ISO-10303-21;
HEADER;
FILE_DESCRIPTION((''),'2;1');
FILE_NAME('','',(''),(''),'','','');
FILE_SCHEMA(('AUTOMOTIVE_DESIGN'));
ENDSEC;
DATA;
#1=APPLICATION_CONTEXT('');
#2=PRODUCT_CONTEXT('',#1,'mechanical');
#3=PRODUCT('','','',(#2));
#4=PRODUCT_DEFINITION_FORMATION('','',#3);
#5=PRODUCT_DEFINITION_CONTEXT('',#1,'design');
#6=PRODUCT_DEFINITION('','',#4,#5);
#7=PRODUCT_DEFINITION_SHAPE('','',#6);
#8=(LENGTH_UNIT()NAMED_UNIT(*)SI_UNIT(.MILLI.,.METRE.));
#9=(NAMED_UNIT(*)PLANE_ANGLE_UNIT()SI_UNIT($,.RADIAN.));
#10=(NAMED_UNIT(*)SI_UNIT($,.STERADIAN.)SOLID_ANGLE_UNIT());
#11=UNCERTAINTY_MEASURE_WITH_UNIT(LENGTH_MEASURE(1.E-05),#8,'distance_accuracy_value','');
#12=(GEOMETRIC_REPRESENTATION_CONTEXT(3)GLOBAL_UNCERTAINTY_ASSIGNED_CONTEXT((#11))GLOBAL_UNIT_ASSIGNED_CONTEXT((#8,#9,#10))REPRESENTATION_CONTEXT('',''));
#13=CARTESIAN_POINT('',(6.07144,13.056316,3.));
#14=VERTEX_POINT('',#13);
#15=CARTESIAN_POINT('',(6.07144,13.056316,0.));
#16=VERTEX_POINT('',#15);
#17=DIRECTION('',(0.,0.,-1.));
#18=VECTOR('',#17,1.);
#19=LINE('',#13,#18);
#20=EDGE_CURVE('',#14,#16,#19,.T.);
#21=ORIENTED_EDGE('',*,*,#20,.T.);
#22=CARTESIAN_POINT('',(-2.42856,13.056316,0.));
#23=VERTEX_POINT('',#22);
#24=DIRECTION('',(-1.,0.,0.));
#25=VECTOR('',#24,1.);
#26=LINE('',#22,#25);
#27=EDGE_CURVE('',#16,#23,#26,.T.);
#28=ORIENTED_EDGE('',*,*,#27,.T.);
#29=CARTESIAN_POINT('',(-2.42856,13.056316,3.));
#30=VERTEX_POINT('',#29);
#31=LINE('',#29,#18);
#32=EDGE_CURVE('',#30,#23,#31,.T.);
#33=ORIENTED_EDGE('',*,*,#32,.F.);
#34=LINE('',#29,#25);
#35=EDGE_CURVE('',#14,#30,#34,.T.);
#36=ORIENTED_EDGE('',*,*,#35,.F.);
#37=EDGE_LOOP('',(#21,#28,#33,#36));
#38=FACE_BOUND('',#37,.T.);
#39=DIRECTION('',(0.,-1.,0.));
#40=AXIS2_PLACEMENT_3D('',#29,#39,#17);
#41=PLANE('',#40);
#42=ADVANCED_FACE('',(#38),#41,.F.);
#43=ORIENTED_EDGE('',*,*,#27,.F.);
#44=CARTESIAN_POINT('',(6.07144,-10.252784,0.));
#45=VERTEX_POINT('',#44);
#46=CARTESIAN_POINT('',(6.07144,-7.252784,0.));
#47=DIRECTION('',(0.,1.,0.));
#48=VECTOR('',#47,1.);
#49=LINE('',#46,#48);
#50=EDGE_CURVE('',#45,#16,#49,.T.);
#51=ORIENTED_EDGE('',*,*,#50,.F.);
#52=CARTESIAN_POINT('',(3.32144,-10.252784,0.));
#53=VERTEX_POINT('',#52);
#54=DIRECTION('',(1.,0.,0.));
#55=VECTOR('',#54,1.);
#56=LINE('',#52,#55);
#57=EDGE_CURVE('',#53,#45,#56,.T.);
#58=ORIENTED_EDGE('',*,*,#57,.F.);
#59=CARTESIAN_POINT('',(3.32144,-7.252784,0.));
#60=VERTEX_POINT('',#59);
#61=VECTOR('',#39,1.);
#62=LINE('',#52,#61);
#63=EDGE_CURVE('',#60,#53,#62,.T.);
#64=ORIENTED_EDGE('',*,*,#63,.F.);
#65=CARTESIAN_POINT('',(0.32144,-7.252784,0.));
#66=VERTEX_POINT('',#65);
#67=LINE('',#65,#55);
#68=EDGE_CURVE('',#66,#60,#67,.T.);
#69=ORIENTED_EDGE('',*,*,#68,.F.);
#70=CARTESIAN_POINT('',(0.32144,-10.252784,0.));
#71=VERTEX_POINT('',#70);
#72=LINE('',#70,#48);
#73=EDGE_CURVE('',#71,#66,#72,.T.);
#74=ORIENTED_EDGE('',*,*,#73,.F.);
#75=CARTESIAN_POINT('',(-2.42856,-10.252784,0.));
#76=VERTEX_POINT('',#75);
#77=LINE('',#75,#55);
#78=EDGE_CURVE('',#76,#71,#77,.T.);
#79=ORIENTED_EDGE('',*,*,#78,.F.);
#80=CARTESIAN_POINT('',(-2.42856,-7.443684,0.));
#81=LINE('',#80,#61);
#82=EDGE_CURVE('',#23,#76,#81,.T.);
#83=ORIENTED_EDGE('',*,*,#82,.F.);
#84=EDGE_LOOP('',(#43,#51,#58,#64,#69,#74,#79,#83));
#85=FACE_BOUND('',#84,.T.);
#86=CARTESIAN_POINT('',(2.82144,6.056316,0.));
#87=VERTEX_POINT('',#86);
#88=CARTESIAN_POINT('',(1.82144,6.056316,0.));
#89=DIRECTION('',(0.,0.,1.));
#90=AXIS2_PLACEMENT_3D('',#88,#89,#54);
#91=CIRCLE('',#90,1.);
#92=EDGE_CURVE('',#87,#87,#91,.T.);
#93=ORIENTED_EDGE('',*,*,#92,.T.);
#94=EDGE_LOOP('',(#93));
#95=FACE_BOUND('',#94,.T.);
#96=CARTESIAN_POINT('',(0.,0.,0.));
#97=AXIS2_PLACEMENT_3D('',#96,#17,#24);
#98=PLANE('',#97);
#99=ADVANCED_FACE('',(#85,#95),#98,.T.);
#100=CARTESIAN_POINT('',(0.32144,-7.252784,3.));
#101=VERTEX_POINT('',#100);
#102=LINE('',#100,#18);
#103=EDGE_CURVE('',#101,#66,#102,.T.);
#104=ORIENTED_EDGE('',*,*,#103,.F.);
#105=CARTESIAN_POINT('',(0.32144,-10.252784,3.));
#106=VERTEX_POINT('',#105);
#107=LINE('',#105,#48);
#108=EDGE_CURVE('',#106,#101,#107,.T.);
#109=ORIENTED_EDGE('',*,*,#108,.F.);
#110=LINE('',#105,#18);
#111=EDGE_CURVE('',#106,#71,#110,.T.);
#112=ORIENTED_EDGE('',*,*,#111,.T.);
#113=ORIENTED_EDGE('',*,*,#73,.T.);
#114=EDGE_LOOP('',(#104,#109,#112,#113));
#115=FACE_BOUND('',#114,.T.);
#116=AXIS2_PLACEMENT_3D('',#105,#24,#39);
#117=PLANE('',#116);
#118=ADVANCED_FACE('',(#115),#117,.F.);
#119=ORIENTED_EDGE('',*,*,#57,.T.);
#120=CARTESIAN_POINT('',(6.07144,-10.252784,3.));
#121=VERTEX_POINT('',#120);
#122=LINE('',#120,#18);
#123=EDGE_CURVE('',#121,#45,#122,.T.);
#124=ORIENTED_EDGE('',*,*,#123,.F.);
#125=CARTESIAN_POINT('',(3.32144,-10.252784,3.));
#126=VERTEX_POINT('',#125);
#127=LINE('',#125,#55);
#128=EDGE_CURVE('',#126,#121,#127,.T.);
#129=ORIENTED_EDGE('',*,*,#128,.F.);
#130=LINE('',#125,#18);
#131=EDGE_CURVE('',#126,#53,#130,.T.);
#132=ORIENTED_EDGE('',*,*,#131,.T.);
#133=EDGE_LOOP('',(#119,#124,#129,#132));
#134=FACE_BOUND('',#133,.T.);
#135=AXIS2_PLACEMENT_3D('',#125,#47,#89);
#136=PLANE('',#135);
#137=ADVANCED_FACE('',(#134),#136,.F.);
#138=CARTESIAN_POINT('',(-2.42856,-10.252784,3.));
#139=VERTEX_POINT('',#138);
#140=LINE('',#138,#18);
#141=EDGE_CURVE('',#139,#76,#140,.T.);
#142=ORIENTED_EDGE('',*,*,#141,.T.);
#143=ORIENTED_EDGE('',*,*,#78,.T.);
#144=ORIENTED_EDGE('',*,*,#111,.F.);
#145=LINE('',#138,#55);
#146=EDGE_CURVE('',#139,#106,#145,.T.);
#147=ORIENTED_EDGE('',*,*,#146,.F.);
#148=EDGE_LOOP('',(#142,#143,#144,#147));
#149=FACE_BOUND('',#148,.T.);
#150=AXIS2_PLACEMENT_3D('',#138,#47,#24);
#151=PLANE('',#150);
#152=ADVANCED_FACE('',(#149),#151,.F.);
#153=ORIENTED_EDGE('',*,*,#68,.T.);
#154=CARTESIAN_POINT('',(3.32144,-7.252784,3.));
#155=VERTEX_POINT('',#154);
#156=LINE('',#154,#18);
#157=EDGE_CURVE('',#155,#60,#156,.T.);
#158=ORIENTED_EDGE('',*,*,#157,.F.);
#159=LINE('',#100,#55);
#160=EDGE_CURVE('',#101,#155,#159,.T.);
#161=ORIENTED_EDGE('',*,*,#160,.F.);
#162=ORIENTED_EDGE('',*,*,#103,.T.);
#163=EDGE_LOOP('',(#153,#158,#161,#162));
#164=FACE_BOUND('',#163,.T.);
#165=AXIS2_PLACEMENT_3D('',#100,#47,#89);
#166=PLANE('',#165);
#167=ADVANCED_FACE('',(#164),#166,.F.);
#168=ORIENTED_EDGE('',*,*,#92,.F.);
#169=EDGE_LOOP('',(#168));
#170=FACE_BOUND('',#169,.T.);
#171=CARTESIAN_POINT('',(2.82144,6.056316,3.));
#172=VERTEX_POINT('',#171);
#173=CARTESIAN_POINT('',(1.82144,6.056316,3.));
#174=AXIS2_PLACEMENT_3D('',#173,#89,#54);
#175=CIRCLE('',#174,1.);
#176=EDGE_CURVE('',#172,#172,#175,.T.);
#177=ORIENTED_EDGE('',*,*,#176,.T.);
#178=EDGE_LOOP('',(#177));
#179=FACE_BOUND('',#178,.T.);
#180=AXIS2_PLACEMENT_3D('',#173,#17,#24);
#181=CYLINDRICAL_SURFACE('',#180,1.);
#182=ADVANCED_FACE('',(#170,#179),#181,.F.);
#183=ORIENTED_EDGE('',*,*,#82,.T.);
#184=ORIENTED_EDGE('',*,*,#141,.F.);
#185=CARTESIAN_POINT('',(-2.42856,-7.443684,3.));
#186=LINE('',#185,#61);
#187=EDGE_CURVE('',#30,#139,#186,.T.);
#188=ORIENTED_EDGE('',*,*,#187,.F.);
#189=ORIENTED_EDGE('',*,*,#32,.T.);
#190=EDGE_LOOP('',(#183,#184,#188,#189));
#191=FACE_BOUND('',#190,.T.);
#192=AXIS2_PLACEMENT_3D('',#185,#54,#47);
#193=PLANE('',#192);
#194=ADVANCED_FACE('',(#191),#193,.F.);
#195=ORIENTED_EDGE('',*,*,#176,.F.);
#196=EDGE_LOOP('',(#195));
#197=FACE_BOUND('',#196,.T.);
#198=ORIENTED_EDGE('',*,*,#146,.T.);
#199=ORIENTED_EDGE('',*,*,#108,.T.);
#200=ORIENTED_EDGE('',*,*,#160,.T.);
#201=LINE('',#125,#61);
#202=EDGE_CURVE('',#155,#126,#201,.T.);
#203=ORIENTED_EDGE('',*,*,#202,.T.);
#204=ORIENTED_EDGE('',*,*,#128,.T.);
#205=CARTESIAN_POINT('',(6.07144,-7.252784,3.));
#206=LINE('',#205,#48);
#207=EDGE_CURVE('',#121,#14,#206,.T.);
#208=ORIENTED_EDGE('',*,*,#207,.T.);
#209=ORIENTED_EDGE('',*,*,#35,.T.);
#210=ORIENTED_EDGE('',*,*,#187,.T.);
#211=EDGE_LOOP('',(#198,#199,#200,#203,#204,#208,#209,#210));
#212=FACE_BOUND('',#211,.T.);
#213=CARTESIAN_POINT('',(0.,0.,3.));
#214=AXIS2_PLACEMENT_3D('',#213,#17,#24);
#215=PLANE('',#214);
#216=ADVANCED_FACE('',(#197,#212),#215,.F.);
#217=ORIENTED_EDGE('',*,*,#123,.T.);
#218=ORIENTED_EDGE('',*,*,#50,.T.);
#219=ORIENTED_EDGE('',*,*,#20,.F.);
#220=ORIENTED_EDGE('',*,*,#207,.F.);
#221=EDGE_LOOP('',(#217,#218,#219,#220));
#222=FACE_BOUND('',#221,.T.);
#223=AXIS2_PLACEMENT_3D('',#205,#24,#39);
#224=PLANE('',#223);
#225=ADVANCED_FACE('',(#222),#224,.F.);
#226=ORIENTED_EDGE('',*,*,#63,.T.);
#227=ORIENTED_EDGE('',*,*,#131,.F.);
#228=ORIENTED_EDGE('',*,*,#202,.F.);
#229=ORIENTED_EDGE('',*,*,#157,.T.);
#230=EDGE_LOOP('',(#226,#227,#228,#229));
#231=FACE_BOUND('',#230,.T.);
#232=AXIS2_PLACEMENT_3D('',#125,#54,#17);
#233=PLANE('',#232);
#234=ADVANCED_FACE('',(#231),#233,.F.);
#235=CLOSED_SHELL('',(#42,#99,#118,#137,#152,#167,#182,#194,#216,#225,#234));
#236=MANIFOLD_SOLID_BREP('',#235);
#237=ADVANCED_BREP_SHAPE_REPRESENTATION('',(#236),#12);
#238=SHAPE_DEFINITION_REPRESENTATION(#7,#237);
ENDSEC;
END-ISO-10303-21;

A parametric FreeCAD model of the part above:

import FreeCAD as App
import Part
import Sketcher

V = App.Vector


def add_polygon(sketch, points):
    """Adds a closed chain of lines whose ends are joined by coincident constraints."""
    first, n = sketch.GeometryCount, len(points)
    for a, b in zip(points, points[1:] + points[:1]):
        sketch.addGeometry(Part.LineSegment(App.Vector(*a, 0), App.Vector(*b, 0)), False)
    for i in range(n):
        sketch.addConstraint(Sketcher.Constraint("Coincident", first + i, 2, first + (i + 1) % n, 1))

doc = App.newDocument("Part")
body = doc.addObject("PartDesign::Body", "Body")

# Sketch on XY plane
sketch1 = body.newObject("Sketcher::SketchObject", "Sketch")
sketch1.AttachmentSupport = (doc.getObject("XY_Plane"), [""])
sketch1.MapMode = "FlatFace"
add_polygon(sketch1, [(-2.4, 13.1), (-2.4, -10.3), (0.3, -10.3), (0.3, -7.3), (3.3, -7.3), (3.3, -10.3), (6.1, -10.3), (6.1, 13.1)])  # lines 0-7
sketch1.addGeometry(Part.Circle(V(1.8, 6.1, 0), V(0, 0, 1), 1), False)  # 8
sketch1.addConstraint(Sketcher.Constraint("Vertical", 0))
sketch1.addConstraint(Sketcher.Constraint("Horizontal", 1))
sketch1.addConstraint(Sketcher.Constraint("Vertical", 2))
sketch1.addConstraint(Sketcher.Constraint("Horizontal", 3))
sketch1.addConstraint(Sketcher.Constraint("Vertical", 4))
sketch1.addConstraint(Sketcher.Constraint("Horizontal", 5))
sketch1.addConstraint(Sketcher.Constraint("Vertical", 6))
sketch1.addConstraint(Sketcher.Constraint("Horizontal", 7))
sketch1.addConstraint(Sketcher.Constraint("Horizontal", 1, 2, 4, 2))
sketch1.addConstraint(Sketcher.Constraint("Equal", 1, 5))
sketch1.addConstraint(Sketcher.Constraint("Equal", 3, 2))
sketch1.addConstraint(Sketcher.Constraint("Diameter", 8, 2.0))
sketch1.addConstraint(Sketcher.Constraint("DistanceX", 3, 1, 3, 2, 3.0))
sketch1.addConstraint(Sketcher.Constraint("DistanceX", 7, 2, 7, 1, 8.5))
sketch1.addConstraint(Sketcher.Constraint("DistanceY", 8, 3, 6, 2, 7.0))
sketch1.addConstraint(Sketcher.Constraint("DistanceX", 1, 2, 8, 3, 1.5))
sketch1.addConstraint(Sketcher.Constraint("DistanceY", 0, 2, 0, 1, 23.3091))
sketch1.addConstraint(Sketcher.Constraint("DistanceX", -1, 1, 8, 3, 1.82144))
sketch1.addConstraint(Sketcher.Constraint("DistanceY", -1, 1, 8, 3, 6.056316))
pad1 = body.newObject("PartDesign::Pad", "Pad")
pad1.Profile = sketch1
pad1.Length = 3

doc.recompute()
